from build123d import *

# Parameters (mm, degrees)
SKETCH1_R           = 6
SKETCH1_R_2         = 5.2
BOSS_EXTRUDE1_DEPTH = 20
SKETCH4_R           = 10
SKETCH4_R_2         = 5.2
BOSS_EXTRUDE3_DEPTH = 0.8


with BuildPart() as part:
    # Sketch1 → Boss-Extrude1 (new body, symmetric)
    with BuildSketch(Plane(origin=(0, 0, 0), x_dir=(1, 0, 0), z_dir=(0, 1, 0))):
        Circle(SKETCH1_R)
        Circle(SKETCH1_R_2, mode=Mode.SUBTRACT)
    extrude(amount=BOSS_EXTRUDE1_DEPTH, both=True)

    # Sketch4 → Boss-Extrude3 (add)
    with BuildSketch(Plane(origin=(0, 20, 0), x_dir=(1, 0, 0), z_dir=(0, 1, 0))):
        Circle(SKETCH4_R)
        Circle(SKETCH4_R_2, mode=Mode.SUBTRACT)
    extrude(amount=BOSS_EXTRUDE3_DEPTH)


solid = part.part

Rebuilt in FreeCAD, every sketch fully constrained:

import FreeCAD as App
import Part
import Sketcher

V = App.Vector
Q = App.Units.Quantity

doc = App.newDocument("Part")
body = doc.addObject("PartDesign::Body", "Body")

sketch1 = body.newObject("Sketcher::SketchObject", "Sketch")
sketch1.AttachmentSupport = (doc.getObject("XZ_Plane"), [""])
sketch1.MapMode = "FlatFace"
sketch1.addGeometry(Part.Circle(V(0, 0, 0), V(0, 0, 1), 6), False)
sketch1.addGeometry(Part.Circle(V(0, 0, 0), V(0, 0, 1), 5), False)
sketch1.addConstraint(Sketcher.Constraint("Coincident", 0, 3, -1, 1))
sketch1.addConstraint(Sketcher.Constraint("Coincident", 1, 3, -1, 1))
sketch1.addConstraint(Sketcher.Constraint("Diameter", 0, Q("12 mm")))
sketch1.addConstraint(Sketcher.Constraint("Diameter", 1, Q("10.4 mm")))
pad1 = body.newObject("PartDesign::Pad", "Pad")
pad1.Profile = sketch1
pad1.Length = 40
pad1.Midplane = True

sketch2 = body.newObject("Sketcher::SketchObject", "Sketch001")
sketch2.AttachmentSupport = (doc.getObject("XZ_Plane"), [""])
sketch2.MapMode = "FlatFace"
sketch2.AttachmentOffset = App.Placement(V(0, 0, -20), App.Rotation())
sketch2.addGeometry(Part.Circle(V(0, 0, 0), V(0, 0, 1), 10), False)
sketch2.addGeometry(Part.Circle(V(0, 0, 0), V(0, 0, 1), 5), False)
sketch2.addConstraint(Sketcher.Constraint("Coincident", 0, 3, -1, 1))
sketch2.addConstraint(Sketcher.Constraint("Coincident", 1, 3, -1, 1))
sketch2.addConstraint(Sketcher.Constraint("Diameter", 0, Q("20 mm")))
sketch2.addConstraint(Sketcher.Constraint("Diameter", 1, Q("10.4 mm")))
pad2 = body.newObject("PartDesign::Pad", "Pad001")
pad2.Profile = sketch2
pad2.Length = 0.8
pad2.Reversed = True

doc.recompute()
